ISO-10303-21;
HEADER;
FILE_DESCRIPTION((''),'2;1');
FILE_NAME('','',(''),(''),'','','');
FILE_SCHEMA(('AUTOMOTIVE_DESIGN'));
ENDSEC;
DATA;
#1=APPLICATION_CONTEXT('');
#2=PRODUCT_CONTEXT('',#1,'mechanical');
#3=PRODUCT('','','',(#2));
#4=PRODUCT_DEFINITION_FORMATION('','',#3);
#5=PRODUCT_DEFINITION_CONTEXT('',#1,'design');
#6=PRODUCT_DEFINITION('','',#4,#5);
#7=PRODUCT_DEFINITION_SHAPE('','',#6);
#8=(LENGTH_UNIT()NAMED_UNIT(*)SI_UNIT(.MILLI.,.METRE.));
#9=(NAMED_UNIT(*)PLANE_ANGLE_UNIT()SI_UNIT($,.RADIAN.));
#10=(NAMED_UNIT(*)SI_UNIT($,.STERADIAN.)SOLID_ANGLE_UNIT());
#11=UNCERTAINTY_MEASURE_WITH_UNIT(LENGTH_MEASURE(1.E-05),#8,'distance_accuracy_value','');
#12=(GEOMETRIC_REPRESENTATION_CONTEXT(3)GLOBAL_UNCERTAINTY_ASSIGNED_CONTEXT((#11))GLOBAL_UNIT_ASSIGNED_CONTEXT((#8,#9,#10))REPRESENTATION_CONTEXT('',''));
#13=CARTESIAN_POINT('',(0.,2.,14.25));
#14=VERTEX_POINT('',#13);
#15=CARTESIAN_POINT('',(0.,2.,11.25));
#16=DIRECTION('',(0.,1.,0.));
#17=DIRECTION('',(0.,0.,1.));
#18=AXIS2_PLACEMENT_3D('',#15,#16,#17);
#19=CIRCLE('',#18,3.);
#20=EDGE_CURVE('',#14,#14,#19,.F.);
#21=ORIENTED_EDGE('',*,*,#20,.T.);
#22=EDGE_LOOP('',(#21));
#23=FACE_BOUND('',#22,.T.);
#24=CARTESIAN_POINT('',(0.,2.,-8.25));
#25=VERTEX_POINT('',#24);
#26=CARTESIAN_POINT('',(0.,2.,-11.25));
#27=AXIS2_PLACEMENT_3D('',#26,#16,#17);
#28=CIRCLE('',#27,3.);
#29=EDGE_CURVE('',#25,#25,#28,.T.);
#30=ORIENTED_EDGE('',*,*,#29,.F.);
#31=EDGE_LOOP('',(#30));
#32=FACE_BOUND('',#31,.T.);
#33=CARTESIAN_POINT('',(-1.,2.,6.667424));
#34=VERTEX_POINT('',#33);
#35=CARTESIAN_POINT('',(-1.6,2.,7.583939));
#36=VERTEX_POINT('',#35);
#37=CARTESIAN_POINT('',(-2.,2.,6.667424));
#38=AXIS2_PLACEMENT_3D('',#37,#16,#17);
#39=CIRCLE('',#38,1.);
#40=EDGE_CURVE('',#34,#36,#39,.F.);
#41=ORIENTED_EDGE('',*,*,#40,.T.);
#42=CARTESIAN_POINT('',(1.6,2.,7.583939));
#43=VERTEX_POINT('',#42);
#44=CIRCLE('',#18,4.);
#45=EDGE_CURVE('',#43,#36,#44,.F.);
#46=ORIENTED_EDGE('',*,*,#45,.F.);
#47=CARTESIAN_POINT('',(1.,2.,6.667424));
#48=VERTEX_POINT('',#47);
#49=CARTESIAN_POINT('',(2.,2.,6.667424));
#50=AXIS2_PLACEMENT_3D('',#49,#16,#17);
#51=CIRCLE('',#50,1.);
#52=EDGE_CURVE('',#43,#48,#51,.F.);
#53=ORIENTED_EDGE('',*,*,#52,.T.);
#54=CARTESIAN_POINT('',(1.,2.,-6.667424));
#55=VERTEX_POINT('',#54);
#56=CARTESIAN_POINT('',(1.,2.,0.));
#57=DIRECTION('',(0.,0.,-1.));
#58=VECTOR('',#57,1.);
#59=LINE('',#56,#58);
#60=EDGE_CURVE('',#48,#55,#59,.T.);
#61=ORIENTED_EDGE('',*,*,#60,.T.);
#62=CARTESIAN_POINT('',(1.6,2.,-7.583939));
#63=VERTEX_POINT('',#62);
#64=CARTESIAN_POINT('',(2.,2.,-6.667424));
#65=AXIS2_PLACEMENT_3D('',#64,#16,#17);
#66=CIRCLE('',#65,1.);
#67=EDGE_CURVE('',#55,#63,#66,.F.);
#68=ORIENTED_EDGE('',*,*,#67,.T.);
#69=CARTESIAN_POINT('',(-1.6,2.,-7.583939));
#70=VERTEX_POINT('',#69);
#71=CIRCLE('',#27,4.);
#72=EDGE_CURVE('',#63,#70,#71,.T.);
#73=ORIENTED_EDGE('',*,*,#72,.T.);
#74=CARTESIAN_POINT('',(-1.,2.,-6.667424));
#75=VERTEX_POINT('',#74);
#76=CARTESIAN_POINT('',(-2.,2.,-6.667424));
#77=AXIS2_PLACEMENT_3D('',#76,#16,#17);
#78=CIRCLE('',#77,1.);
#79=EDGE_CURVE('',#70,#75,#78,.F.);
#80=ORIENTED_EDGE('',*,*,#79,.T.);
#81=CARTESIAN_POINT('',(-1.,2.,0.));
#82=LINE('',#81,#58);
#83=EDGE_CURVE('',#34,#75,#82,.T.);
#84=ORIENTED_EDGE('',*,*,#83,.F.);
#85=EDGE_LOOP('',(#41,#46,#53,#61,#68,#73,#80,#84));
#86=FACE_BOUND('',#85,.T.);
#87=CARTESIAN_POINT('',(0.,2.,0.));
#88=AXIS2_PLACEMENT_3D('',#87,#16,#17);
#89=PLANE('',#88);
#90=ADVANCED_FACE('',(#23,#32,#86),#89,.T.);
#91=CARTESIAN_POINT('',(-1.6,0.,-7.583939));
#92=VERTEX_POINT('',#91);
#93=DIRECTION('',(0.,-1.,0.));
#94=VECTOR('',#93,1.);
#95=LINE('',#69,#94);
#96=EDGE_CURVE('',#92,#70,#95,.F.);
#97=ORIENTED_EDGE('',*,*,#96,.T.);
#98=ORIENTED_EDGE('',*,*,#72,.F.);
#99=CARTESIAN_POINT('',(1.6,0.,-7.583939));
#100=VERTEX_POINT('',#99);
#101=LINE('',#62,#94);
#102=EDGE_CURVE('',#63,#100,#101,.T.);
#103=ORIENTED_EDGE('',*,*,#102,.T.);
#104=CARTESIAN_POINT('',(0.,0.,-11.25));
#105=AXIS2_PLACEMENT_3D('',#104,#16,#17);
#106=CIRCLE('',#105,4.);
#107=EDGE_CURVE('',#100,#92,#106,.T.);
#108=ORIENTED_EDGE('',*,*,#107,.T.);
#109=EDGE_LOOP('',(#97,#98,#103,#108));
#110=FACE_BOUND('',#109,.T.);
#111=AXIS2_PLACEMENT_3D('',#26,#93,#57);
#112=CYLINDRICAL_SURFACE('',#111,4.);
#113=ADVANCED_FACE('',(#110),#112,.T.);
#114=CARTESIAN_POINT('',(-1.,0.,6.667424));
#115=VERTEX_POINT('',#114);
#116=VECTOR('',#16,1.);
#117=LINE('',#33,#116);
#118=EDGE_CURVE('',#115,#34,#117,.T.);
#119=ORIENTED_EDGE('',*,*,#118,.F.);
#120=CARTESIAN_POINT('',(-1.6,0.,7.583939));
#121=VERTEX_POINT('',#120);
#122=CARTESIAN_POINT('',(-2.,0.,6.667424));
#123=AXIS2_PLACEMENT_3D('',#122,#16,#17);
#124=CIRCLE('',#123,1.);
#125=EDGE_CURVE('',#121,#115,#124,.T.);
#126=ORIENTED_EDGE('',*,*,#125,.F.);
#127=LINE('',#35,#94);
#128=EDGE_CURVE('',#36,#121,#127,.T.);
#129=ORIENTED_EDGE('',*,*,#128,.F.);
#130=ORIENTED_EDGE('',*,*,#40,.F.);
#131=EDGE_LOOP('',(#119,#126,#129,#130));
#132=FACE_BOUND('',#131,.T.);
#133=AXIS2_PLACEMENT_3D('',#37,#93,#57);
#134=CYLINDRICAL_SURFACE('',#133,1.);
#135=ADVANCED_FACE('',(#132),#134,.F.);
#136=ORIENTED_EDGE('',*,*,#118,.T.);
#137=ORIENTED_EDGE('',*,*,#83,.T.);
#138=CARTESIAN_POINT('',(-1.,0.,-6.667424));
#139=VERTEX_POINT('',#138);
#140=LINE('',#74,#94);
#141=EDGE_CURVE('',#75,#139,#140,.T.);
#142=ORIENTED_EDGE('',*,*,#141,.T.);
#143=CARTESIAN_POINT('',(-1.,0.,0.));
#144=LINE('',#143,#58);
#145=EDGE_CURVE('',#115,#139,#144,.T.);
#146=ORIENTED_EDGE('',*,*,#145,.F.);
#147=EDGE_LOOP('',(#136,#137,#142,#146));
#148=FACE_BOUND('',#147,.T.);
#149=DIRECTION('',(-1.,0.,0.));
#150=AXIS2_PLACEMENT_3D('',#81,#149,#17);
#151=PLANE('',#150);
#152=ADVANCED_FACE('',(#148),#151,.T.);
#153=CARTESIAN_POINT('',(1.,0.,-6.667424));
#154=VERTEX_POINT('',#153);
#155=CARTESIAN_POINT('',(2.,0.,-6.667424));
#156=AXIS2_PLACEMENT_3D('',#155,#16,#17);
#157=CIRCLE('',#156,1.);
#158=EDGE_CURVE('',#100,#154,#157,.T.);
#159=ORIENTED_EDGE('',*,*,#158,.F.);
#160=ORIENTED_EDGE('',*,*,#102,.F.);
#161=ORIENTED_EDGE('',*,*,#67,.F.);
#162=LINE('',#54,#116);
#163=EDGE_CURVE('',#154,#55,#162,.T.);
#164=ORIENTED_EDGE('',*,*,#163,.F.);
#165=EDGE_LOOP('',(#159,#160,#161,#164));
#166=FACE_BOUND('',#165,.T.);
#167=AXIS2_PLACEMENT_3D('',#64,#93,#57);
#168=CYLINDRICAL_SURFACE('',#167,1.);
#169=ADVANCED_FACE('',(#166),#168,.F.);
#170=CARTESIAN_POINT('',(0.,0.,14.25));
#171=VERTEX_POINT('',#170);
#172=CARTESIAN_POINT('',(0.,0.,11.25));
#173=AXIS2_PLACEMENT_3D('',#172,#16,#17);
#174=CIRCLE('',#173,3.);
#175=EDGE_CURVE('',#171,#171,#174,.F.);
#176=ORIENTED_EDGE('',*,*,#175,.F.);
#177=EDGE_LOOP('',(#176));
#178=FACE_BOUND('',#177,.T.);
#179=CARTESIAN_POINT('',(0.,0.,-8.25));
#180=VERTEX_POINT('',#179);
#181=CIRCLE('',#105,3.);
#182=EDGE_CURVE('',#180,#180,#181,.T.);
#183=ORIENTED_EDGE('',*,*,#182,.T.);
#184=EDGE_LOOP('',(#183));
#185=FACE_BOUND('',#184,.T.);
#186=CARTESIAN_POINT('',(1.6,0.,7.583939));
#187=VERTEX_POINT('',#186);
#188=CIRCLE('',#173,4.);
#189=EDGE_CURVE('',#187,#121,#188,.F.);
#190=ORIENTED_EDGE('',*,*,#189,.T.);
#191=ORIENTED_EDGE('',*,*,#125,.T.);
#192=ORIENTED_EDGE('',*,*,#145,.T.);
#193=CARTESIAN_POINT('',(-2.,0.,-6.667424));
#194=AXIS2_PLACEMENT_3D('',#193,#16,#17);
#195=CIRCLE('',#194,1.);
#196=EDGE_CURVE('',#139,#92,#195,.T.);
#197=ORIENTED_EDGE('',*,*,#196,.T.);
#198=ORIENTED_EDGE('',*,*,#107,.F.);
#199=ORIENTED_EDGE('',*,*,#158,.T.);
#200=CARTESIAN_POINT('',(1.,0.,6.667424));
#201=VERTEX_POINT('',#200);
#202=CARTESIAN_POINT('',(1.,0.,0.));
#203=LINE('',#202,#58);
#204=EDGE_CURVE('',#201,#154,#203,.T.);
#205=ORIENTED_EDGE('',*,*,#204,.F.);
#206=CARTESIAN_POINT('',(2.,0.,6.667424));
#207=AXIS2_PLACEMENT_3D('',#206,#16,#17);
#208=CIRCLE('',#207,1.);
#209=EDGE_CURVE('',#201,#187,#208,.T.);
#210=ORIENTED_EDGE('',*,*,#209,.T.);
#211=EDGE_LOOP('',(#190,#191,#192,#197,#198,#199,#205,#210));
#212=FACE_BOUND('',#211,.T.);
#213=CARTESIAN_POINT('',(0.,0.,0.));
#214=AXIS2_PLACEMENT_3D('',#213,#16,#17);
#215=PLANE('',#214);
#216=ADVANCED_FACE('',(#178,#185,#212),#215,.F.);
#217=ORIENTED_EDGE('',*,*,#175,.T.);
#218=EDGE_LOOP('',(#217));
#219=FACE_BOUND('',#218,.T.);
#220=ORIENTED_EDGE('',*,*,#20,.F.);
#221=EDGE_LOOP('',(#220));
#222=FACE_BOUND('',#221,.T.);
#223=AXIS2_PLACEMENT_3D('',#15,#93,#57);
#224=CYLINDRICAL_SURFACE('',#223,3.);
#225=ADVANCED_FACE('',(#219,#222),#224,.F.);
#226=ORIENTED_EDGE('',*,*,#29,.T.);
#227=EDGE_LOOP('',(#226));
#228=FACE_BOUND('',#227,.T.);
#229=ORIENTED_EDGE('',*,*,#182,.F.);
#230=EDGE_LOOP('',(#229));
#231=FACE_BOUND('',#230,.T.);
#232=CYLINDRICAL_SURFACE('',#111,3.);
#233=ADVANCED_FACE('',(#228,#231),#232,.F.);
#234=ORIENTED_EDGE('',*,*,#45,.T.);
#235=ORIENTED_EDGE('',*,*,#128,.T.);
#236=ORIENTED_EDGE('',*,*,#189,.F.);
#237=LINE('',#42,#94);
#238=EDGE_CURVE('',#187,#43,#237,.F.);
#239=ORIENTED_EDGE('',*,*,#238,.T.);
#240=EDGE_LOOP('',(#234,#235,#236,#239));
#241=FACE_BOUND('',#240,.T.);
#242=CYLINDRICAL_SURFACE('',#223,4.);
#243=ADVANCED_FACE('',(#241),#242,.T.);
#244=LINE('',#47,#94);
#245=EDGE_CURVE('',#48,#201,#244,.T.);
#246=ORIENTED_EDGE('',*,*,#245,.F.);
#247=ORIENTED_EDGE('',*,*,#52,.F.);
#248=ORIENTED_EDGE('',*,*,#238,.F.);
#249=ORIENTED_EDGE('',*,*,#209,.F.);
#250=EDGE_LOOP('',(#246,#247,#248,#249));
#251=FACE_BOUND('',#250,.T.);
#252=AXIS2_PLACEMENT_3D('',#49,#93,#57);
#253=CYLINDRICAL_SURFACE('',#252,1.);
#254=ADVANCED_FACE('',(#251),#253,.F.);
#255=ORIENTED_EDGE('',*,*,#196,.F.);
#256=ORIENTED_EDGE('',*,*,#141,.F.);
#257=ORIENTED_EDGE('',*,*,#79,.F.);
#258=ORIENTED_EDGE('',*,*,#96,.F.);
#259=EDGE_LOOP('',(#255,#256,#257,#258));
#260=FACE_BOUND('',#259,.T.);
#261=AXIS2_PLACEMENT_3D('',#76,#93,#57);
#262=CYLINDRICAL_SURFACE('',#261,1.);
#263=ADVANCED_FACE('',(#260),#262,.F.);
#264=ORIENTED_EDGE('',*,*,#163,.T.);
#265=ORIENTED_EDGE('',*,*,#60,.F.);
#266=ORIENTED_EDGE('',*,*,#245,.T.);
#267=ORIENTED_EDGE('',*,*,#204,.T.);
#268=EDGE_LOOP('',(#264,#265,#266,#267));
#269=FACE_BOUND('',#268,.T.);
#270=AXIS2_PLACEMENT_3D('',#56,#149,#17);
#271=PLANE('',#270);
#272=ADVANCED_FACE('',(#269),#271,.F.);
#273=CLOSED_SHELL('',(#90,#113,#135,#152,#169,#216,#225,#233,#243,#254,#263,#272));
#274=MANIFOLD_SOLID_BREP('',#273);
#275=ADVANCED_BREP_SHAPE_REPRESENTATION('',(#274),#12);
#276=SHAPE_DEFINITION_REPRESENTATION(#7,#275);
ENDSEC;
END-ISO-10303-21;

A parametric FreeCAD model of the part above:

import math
import FreeCAD as App
import Part
import Sketcher
from FreeCAD import Vector


def edges_at(feature, points):
    """Names of the edges that pass closest to the given points."""
    edges = feature.Shape.Edges
    near = lambda p: min(range(len(edges)), key=lambda i: edges[i].distToShape(Part.Vertex(*p))[0])
    return sorted({f"Edge{near(p) + 1}" for p in points})

doc = App.newDocument("Part")
body = doc.addObject("PartDesign::Body", "Body")

sketch1 = doc.addObject("Sketcher::SketchObject", "Sketch")
body.addObject(sketch1)
sketch1.AttachmentSupport = (doc.XZ_Plane, [""])
sketch1.MapMode = "FlatFace"
sketch1.addGeometry([
    Part.LineSegment(Vector(-1, -7.4, 0), Vector(-1, 7.4, 0)),
    Part.ArcOfCircle(Part.Circle(Vector(0, 11.2, 0), Vector(0, 0, 1), 4), math.radians(-76), math.radians(256)),
    Part.LineSegment(Vector(1, 7.4, 0), Vector(1, -7.4, 0)),
    Part.ArcOfCircle(Part.Circle(Vector(0, -11.2, 0), Vector(0, 0, 1), 4), math.radians(104), math.radians(436)),
    Part.Circle(Vector(0, -11.2, 0), Vector(0, 0, 1), 3),
    Part.Circle(Vector(0, 11.2, 0), Vector(0, 0, 1), 3),
], False)
sketch1.addConstraint([
    Sketcher.Constraint("Coincident", 0, 2, 1, 2),
    Sketcher.Constraint("Coincident", 1, 1, 2, 1),
    Sketcher.Constraint("Coincident", 2, 2, 3, 2),
    Sketcher.Constraint("Coincident", 3, 1, 0, 1),
    Sketcher.Constraint("Vertical", 0),
    Sketcher.Constraint("Vertical", 2),
    Sketcher.Constraint("Coincident", 4, 3, 3, 3),
    Sketcher.Constraint("Coincident", 5, 3, 1, 3),
    Sketcher.Constraint("Equal", 1, 3),
    Sketcher.Constraint("Equal", 4, 5),
    Sketcher.Constraint("Symmetric", 1, 3, 3, 3, -1, 1),
    Sketcher.Constraint("Symmetric", 0, 2, 1, 1, -2),
    Sketcher.Constraint("Diameter", 4, 6.0),
    Sketcher.Constraint("Radius", 1, 4.0),
    Sketcher.Constraint("DistanceX", 0, 2, -1, 1, 1.0),
    Sketcher.Constraint("DistanceY", 3, 3, 1, 3, 22.5),
])
pad1 = doc.addObject("PartDesign::Pad", "Pad")
body.addObject(pad1)
pad1.Profile = sketch1
pad1.Length = 2
pad1.Reversed = True
doc.recompute()

fillet = doc.addObject("PartDesign::Fillet", "Fillet")
body.addObject(fillet)
fillet.Base = (pad1, edges_at(pad1, [
    (1, 1, -7.377),
    (1, 1, 7.377),
    (-1, 1, 7.377),
    (-1, 1, -7.377),
]))
fillet.Radius = 1

doc.recompute()
